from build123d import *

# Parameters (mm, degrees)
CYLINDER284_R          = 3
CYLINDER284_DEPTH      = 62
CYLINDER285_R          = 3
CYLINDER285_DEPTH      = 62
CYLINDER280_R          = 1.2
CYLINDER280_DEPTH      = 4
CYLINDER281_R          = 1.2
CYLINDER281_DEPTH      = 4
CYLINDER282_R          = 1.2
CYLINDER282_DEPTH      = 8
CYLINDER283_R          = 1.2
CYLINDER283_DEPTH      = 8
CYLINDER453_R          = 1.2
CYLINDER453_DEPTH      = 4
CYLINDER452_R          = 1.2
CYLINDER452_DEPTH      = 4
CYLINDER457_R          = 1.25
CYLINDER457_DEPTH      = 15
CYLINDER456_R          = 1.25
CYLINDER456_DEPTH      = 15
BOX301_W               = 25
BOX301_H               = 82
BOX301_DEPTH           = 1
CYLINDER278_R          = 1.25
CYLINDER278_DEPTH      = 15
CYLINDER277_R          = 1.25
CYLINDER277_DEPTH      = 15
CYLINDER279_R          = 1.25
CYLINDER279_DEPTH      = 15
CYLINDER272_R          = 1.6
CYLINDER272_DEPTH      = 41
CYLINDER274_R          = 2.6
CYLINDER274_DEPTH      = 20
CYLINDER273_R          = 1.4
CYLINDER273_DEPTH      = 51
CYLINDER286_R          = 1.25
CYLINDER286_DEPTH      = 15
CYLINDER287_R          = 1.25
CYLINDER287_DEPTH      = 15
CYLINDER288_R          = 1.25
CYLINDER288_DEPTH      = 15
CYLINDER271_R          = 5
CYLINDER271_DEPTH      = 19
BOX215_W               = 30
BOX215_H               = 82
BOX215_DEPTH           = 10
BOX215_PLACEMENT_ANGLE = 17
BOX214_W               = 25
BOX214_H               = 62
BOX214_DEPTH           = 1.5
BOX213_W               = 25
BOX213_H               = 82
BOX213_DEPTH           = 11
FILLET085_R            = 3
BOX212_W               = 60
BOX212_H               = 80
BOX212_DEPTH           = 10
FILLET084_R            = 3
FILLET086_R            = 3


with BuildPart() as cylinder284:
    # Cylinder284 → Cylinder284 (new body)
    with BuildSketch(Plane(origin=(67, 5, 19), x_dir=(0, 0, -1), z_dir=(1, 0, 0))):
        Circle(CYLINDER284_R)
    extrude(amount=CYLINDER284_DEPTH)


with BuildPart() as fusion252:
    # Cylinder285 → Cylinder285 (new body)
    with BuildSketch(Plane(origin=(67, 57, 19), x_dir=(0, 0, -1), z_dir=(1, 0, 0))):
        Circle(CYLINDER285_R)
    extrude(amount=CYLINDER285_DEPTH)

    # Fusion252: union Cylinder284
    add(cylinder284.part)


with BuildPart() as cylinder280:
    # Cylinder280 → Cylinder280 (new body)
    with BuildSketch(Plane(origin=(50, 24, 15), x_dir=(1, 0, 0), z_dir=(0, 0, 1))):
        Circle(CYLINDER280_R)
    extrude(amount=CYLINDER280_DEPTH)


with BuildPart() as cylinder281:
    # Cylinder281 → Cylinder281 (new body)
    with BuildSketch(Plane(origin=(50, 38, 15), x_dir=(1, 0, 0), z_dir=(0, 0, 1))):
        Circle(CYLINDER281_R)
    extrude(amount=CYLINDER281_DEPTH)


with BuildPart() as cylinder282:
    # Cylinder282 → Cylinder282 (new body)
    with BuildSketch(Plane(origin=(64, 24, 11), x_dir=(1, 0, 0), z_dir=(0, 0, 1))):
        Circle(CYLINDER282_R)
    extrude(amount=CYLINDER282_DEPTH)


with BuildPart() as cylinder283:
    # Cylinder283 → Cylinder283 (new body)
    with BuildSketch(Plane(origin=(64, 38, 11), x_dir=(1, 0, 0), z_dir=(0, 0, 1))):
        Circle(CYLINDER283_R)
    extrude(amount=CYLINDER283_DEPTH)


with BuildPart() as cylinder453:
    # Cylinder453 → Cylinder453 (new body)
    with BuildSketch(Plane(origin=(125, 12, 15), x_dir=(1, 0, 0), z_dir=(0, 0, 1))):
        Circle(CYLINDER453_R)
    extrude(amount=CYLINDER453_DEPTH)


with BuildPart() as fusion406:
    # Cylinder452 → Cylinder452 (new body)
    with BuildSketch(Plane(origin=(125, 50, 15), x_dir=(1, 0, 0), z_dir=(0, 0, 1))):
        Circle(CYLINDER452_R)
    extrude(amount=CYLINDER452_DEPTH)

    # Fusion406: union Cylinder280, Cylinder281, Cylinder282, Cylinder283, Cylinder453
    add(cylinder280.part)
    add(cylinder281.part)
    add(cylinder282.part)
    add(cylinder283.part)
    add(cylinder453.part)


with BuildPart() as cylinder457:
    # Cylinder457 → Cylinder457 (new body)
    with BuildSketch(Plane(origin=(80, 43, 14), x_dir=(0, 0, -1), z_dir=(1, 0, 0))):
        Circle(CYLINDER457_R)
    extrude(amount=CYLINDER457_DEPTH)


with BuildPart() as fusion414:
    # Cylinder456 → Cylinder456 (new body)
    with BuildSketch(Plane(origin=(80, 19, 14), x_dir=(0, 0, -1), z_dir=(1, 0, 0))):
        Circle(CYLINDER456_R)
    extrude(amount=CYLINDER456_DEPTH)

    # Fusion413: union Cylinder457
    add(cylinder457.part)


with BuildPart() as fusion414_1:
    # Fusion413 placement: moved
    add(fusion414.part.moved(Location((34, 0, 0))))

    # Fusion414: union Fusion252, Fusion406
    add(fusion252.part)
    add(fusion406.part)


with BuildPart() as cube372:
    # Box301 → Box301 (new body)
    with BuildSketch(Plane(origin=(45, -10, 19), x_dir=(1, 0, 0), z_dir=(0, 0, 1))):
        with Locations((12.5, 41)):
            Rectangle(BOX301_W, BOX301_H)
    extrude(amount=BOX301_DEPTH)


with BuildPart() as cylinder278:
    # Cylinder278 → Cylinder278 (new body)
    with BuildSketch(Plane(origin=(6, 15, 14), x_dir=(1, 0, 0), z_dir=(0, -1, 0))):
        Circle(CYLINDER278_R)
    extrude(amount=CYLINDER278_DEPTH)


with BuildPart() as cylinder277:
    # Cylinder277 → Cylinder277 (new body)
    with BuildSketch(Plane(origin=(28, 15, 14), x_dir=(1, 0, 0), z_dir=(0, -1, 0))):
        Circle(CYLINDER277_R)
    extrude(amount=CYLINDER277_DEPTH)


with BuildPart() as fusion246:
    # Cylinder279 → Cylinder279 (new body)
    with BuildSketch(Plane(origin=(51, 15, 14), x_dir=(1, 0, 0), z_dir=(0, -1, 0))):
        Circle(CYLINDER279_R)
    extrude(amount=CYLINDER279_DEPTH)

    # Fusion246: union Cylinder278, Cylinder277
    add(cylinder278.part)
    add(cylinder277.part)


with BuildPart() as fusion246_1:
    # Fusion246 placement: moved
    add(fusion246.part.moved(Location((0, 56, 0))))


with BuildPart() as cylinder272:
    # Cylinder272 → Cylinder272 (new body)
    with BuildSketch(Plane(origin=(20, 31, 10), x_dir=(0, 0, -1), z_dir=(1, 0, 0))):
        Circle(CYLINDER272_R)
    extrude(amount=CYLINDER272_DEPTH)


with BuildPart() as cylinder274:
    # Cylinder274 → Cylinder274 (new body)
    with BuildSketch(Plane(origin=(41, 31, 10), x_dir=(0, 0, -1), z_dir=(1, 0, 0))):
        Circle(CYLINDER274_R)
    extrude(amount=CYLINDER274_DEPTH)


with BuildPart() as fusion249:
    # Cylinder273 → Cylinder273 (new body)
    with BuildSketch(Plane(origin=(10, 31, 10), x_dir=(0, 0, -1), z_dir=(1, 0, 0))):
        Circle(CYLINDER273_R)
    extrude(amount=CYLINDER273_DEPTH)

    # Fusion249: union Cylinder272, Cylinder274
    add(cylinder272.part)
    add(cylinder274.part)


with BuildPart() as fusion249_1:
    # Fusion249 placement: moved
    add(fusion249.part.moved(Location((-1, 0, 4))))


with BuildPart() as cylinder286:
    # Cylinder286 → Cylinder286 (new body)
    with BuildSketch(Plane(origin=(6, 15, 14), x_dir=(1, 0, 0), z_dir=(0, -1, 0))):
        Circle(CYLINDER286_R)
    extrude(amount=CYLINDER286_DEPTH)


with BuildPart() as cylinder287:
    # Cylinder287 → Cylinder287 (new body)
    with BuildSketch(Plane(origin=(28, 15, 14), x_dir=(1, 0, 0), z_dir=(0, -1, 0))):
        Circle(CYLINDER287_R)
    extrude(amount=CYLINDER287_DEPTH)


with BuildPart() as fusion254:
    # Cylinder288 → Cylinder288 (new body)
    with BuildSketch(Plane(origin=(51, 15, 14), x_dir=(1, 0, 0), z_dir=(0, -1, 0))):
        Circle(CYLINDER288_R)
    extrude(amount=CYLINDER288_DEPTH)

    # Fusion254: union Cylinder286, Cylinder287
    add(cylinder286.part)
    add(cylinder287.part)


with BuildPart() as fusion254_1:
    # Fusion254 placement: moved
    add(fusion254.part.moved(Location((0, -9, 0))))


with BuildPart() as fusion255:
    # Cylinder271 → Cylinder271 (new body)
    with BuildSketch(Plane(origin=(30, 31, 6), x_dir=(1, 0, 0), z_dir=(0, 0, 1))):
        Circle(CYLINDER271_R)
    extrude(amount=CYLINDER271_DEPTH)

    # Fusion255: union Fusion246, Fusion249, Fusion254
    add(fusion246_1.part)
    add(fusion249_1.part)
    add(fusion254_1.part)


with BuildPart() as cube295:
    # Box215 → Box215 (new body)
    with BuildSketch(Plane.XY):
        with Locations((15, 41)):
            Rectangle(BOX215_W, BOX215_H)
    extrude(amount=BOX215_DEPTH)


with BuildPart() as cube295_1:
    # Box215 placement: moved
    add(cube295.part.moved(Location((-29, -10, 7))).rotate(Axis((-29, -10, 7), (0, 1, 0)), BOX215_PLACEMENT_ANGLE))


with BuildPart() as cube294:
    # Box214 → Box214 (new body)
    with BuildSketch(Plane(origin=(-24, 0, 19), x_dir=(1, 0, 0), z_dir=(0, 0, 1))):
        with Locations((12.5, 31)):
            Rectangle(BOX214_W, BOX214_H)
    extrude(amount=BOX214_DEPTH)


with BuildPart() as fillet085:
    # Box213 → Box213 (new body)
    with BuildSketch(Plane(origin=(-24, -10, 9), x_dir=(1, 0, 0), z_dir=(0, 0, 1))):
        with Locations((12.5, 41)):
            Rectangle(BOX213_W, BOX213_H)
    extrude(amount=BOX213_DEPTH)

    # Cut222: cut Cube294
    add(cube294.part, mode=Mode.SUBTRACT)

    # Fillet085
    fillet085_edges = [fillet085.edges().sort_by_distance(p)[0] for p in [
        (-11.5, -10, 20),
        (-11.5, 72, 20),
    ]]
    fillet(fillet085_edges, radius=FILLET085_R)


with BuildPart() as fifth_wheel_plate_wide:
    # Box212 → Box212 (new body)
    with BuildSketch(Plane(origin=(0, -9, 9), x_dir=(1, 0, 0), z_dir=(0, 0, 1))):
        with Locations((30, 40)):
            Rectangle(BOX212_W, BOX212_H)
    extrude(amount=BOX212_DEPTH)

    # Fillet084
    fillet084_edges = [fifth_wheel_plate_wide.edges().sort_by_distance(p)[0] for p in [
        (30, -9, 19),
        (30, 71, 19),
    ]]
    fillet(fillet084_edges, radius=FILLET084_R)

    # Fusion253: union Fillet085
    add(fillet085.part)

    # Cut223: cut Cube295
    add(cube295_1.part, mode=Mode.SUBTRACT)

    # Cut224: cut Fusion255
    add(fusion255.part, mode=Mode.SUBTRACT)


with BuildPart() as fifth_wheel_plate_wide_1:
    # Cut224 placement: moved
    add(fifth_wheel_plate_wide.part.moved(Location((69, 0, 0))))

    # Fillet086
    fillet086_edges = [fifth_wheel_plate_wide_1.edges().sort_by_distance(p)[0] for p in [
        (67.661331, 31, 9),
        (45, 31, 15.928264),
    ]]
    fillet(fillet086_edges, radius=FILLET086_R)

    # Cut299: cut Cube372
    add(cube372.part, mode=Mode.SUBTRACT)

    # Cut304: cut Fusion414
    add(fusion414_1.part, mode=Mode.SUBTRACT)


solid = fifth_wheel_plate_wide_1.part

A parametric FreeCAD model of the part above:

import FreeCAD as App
import Part
import Sketcher
from FreeCAD import Vector


def edges_at(feature, points):
    """Names of the edges that pass closest to the given points."""
    edges = feature.Shape.Edges
    near = lambda p: min(range(len(edges)), key=lambda i: edges[i].distToShape(Part.Vertex(*p))[0])
    return sorted({f"Edge{near(p) + 1}" for p in points})


def add_polygon(sketch, points):
    """Adds a closed chain of lines whose ends are joined by coincident constraints."""
    first, n = sketch.GeometryCount, len(points)
    for a, b in zip(points, points[1:] + points[:1]):
        sketch.addGeometry(Part.LineSegment(App.Vector(*a, 0), App.Vector(*b, 0)), False)
    for i in range(n):
        sketch.addConstraint(Sketcher.Constraint("Coincident", first + i, 2, first + (i + 1) % n, 1))

doc = App.newDocument("Part")
params = doc.addObject("Spreadsheet::Sheet", "Params")
for row, (alias, value) in enumerate([
    ("sketch1_diameter", "6 mm"),
    ("pad1_length", "62 mm"),
    ("sketch2_diameter", "6 mm"),
    ("pad2_length", "62 mm"),
    ("sketch3_diameter", "2.4 mm"),
    ("pad3_length", "4 mm"),
    ("sketch4_diameter", "2.4 mm"),
    ("pad4_length", "4 mm"),
    ("sketch5_diameter", "2.4 mm"),
    ("pad5_length", "8 mm"),
    ("sketch6_diameter", "2.4 mm"),
    ("pad6_length", "8 mm"),
    ("sketch7_diameter", "2.4 mm"),
    ("pad7_length", "4 mm"),
    ("sketch8_diameter", "2.4 mm"),
    ("pad8_length", "4 mm"),
    ("sketch9_diameter", "2.5 mm"),
    ("pad9_length", "15 mm"),
    ("sketch10_diameter", "2.5 mm"),
    ("pad10_length", "15 mm"),
    ("sketch11_width", "25 mm"),
    ("sketch11_height", "82 mm"),
    ("pad11_length", "1 mm"),
    ("sketch12_diameter", "2.5 mm"),
    ("pad12_length", "15 mm"),
    ("sketch13_diameter", "2.5 mm"),
    ("pad13_length", "15 mm"),
    ("sketch14_diameter", "2.5 mm"),
    ("pad14_length", "15 mm"),
    ("sketch15_diameter", "3.2 mm"),
    ("pad15_length", "41 mm"),
    ("sketch16_diameter", "5.2 mm"),
    ("pad16_length", "20 mm"),
    ("sketch17_diameter", "2.8 mm"),
    ("pad17_length", "51 mm"),
    ("sketch18_diameter", "2.5 mm"),
    ("pad18_length", "15 mm"),
    ("sketch19_diameter", "2.5 mm"),
    ("pad19_length", "15 mm"),
    ("sketch20_diameter", "2.5 mm"),
    ("pad20_length", "15 mm"),
    ("sketch21_diameter", "10 mm"),
    ("pad21_length", "19 mm"),
    ("sketch22_width", "30 mm"),
    ("sketch22_height", "82 mm"),
    ("pad22_length", "10 mm"),
    ("sketch23_width", "25 mm"),
    ("sketch23_height", "62 mm"),
    ("pad23_length", "1.5 mm"),
    ("sketch24_width", "25 mm"),
    ("sketch24_height", "82 mm"),
    ("pad24_length", "11 mm"),
    ("fillet_radius", "3 mm"),
    ("sketch25_width", "60 mm"),
    ("sketch25_height", "80 mm"),
    ("pad25_length", "10 mm"),
    ("fillet2_radius", "3 mm"),
    ("fillet3_radius", "3 mm"),
], start=1):
    params.set(f"A{row}", alias)
    params.set(f"B{row}", "=" + value)
    params.setAlias(f"B{row}", alias)

body = doc.addObject("PartDesign::Body", "Body")

sketch1 = body.newObject("Sketcher::SketchObject", "Sketch")
sketch1.AttachmentSupport = (doc.getObject("YZ_Plane"), [""])
sketch1.MapMode = "FlatFace"
sketch1.AttachmentOffset = App.Placement(Vector(0, 0, 67), App.Rotation())
sketch1.addGeometry(Part.Circle(Vector(5, 19, 0), Vector(0, 0, 1), 3), False)
sketch1.addConstraint(Sketcher.Constraint("Diameter", 0, 6.0))
sketch1.addConstraint(Sketcher.Constraint("DistanceX", -1, 1, 0, 3, 5.0))
sketch1.addConstraint(Sketcher.Constraint("DistanceY", -1, 1, 0, 3, 19.0))
sketch1.setExpression("Constraints[0]", "Params.sketch1_diameter")
pad1 = body.newObject("PartDesign::Pad", "Pad")
pad1.Profile = sketch1
pad1.setExpression("Length", "Params.pad1_length")
body2 = doc.addObject("PartDesign::Body", "Body001")
body2.AllowCompound = True

sketch2 = body2.newObject("Sketcher::SketchObject", "Sketch001")
sketch2.AttachmentSupport = (doc.getObject("YZ_Plane001"), [""])
sketch2.MapMode = "FlatFace"
sketch2.AttachmentOffset = App.Placement(Vector(0, 0, 67), App.Rotation())
sketch2.addGeometry(Part.Circle(Vector(57, 19, 0), Vector(0, 0, 1), 3), False)
sketch2.addConstraint(Sketcher.Constraint("Diameter", 0, 6.0))
sketch2.addConstraint(Sketcher.Constraint("DistanceX", -1, 1, 0, 3, 57.0))
sketch2.addConstraint(Sketcher.Constraint("DistanceY", -1, 1, 0, 3, 19.0))
sketch2.setExpression("Constraints[0]", "Params.sketch2_diameter")
pad2 = body2.newObject("PartDesign::Pad", "Pad001")
pad2.Profile = sketch2
pad2.setExpression("Length", "Params.pad2_length")
doc.recompute()

boolean = body2.newObject("PartDesign::Boolean", "Boolean")
boolean.Type = "Fuse"
boolean.addObjects([body])
body3 = doc.addObject("PartDesign::Body", "Body002")

sketch3 = body3.newObject("Sketcher::SketchObject", "Sketch002")
sketch3.AttachmentSupport = (doc.getObject("XY_Plane002"), [""])
sketch3.MapMode = "FlatFace"
sketch3.AttachmentOffset = App.Placement(Vector(0, 0, 15), App.Rotation())
sketch3.addGeometry(Part.Circle(Vector(50, 24, 0), Vector(0, 0, 1), 1.2), False)
sketch3.addConstraint(Sketcher.Constraint("Diameter", 0, 2.4))
sketch3.addConstraint(Sketcher.Constraint("DistanceX", -1, 1, 0, 3, 50.0))
sketch3.addConstraint(Sketcher.Constraint("DistanceY", -1, 1, 0, 3, 24.0))
sketch3.setExpression("Constraints[0]", "Params.sketch3_diameter")
pad3 = body3.newObject("PartDesign::Pad", "Pad002")
pad3.Profile = sketch3
pad3.setExpression("Length", "Params.pad3_length")
body4 = doc.addObject("PartDesign::Body", "Body003")

sketch4 = body4.newObject("Sketcher::SketchObject", "Sketch003")
sketch4.AttachmentSupport = (doc.getObject("XY_Plane003"), [""])
sketch4.MapMode = "FlatFace"
sketch4.AttachmentOffset = App.Placement(Vector(0, 0, 15), App.Rotation())
sketch4.addGeometry(Part.Circle(Vector(50, 38, 0), Vector(0, 0, 1), 1.2), False)
sketch4.addConstraint(Sketcher.Constraint("Diameter", 0, 2.4))
sketch4.addConstraint(Sketcher.Constraint("DistanceX", -1, 1, 0, 3, 50.0))
sketch4.addConstraint(Sketcher.Constraint("DistanceY", -1, 1, 0, 3, 38.0))
sketch4.setExpression("Constraints[0]", "Params.sketch4_diameter")
pad4 = body4.newObject("PartDesign::Pad", "Pad003")
pad4.Profile = sketch4
pad4.setExpression("Length", "Params.pad4_length")
body5 = doc.addObject("PartDesign::Body", "Body004")

sketch5 = body5.newObject("Sketcher::SketchObject", "Sketch004")
sketch5.AttachmentSupport = (doc.getObject("XY_Plane004"), [""])
sketch5.MapMode = "FlatFace"
sketch5.AttachmentOffset = App.Placement(Vector(0, 0, 11), App.Rotation())
sketch5.addGeometry(Part.Circle(Vector(64, 24, 0), Vector(0, 0, 1), 1.2), False)
sketch5.addConstraint(Sketcher.Constraint("Diameter", 0, 2.4))
sketch5.addConstraint(Sketcher.Constraint("DistanceX", -1, 1, 0, 3, 64.0))
sketch5.addConstraint(Sketcher.Constraint("DistanceY", -1, 1, 0, 3, 24.0))
sketch5.setExpression("Constraints[0]", "Params.sketch5_diameter")
pad5 = body5.newObject("PartDesign::Pad", "Pad004")
pad5.Profile = sketch5
pad5.setExpression("Length", "Params.pad5_length")
body6 = doc.addObject("PartDesign::Body", "Body005")

sketch6 = body6.newObject("Sketcher::SketchObject", "Sketch005")
sketch6.AttachmentSupport = (doc.getObject("XY_Plane005"), [""])
sketch6.MapMode = "FlatFace"
sketch6.AttachmentOffset = App.Placement(Vector(0, 0, 11), App.Rotation())
sketch6.addGeometry(Part.Circle(Vector(64, 38, 0), Vector(0, 0, 1), 1.2), False)
sketch6.addConstraint(Sketcher.Constraint("Diameter", 0, 2.4))
sketch6.addConstraint(Sketcher.Constraint("DistanceX", -1, 1, 0, 3, 64.0))
sketch6.addConstraint(Sketcher.Constraint("DistanceY", -1, 1, 0, 3, 38.0))
sketch6.setExpression("Constraints[0]", "Params.sketch6_diameter")
pad6 = body6.newObject("PartDesign::Pad", "Pad005")
pad6.Profile = sketch6
pad6.setExpression("Length", "Params.pad6_length")
body7 = doc.addObject("PartDesign::Body", "Body006")

sketch7 = body7.newObject("Sketcher::SketchObject", "Sketch006")
sketch7.AttachmentSupport = (doc.getObject("XY_Plane006"), [""])
sketch7.MapMode = "FlatFace"
sketch7.AttachmentOffset = App.Placement(Vector(0, 0, 15), App.Rotation())
sketch7.addGeometry(Part.Circle(Vector(125, 12, 0), Vector(0, 0, 1), 1.2), False)
sketch7.addConstraint(Sketcher.Constraint("Diameter", 0, 2.4))
sketch7.addConstraint(Sketcher.Constraint("DistanceX", -1, 1, 0, 3, 125.0))
sketch7.addConstraint(Sketcher.Constraint("DistanceY", -1, 1, 0, 3, 12.0))
sketch7.setExpression("Constraints[0]", "Params.sketch7_diameter")
pad7 = body7.newObject("PartDesign::Pad", "Pad006")
pad7.Profile = sketch7
pad7.setExpression("Length", "Params.pad7_length")
body8 = doc.addObject("PartDesign::Body", "Body007")
body8.AllowCompound = True

sketch8 = body8.newObject("Sketcher::SketchObject", "Sketch007")
sketch8.AttachmentSupport = (doc.getObject("XY_Plane007"), [""])
sketch8.MapMode = "FlatFace"
sketch8.AttachmentOffset = App.Placement(Vector(0, 0, 15), App.Rotation())
sketch8.addGeometry(Part.Circle(Vector(125, 50, 0), Vector(0, 0, 1), 1.2), False)
sketch8.addConstraint(Sketcher.Constraint("Diameter", 0, 2.4))
sketch8.addConstraint(Sketcher.Constraint("DistanceX", -1, 1, 0, 3, 125.0))
sketch8.addConstraint(Sketcher.Constraint("DistanceY", -1, 1, 0, 3, 50.0))
sketch8.setExpression("Constraints[0]", "Params.sketch8_diameter")
pad8 = body8.newObject("PartDesign::Pad", "Pad007")
pad8.Profile = sketch8
pad8.setExpression("Length", "Params.pad8_length")
doc.recompute()

boolean2 = body8.newObject("PartDesign::Boolean", "Boolean001")
boolean2.Type = "Fuse"
boolean2.addObjects([body3])
doc.recompute()

boolean3 = body8.newObject("PartDesign::Boolean", "Boolean002")
boolean3.Type = "Fuse"
boolean3.addObjects([body4])
doc.recompute()

boolean4 = body8.newObject("PartDesign::Boolean", "Boolean003")
boolean4.Type = "Fuse"
boolean4.addObjects([body5])
doc.recompute()

boolean5 = body8.newObject("PartDesign::Boolean", "Boolean004")
boolean5.Type = "Fuse"
boolean5.addObjects([body6])
doc.recompute()

boolean6 = body8.newObject("PartDesign::Boolean", "Boolean005")
boolean6.Type = "Fuse"
boolean6.addObjects([body7])
body9 = doc.addObject("PartDesign::Body", "Body008")

sketch9 = body9.newObject("Sketcher::SketchObject", "Sketch008")
sketch9.AttachmentSupport = (doc.getObject("YZ_Plane008"), [""])
sketch9.MapMode = "FlatFace"
sketch9.AttachmentOffset = App.Placement(Vector(0, 0, 80), App.Rotation())
sketch9.addGeometry(Part.Circle(Vector(43, 14, 0), Vector(0, 0, 1), 1.2), False)
sketch9.addConstraint(Sketcher.Constraint("Diameter", 0, 2.5))
sketch9.addConstraint(Sketcher.Constraint("DistanceX", -1, 1, 0, 3, 43.0))
sketch9.addConstraint(Sketcher.Constraint("DistanceY", -1, 1, 0, 3, 14.0))
sketch9.setExpression("Constraints[0]", "Params.sketch9_diameter")
pad9 = body9.newObject("PartDesign::Pad", "Pad008")
pad9.Profile = sketch9
pad9.setExpression("Length", "Params.pad9_length")
body10 = doc.addObject("PartDesign::Body", "Body009")
body10.AllowCompound = True

sketch10 = body10.newObject("Sketcher::SketchObject", "Sketch009")
sketch10.AttachmentSupport = (doc.getObject("YZ_Plane009"), [""])
sketch10.MapMode = "FlatFace"
sketch10.AttachmentOffset = App.Placement(Vector(0, 0, 80), App.Rotation())
sketch10.addGeometry(Part.Circle(Vector(19, 14, 0), Vector(0, 0, 1), 1.2), False)
sketch10.addConstraint(Sketcher.Constraint("Diameter", 0, 2.5))
sketch10.addConstraint(Sketcher.Constraint("DistanceX", -1, 1, 0, 3, 19.0))
sketch10.addConstraint(Sketcher.Constraint("DistanceY", -1, 1, 0, 3, 14.0))
sketch10.setExpression("Constraints[0]", "Params.sketch10_diameter")
pad10 = body10.newObject("PartDesign::Pad", "Pad009")
pad10.Profile = sketch10
pad10.setExpression("Length", "Params.pad10_length")
doc.recompute()

boolean7 = body10.newObject("PartDesign::Boolean", "Boolean006")
boolean7.Type = "Fuse"
boolean7.addObjects([body9])
body11 = doc.addObject("PartDesign::Body", "Body010")
body11.AllowCompound = True
doc.recompute()

body10.Placement = App.Placement(Vector(34, 0, 0), App.Rotation(Vector(0, 0, 1), 0))
boolean8 = body11.newObject("PartDesign::Boolean", "Boolean007")
boolean8.Type = "Fuse"
boolean8.addObjects([body10])
doc.recompute()

boolean9 = body11.newObject("PartDesign::Boolean", "Boolean008")
boolean9.Type = "Fuse"
boolean9.addObjects([body2])
doc.recompute()

boolean10 = body11.newObject("PartDesign::Boolean", "Boolean009")
boolean10.Type = "Fuse"
boolean10.addObjects([body8])
body12 = doc.addObject("PartDesign::Body", "Body011")

sketch11 = body12.newObject("Sketcher::SketchObject", "Sketch010")
sketch11.AttachmentSupport = (doc.getObject("XY_Plane011"), [""])
sketch11.MapMode = "FlatFace"
sketch11.AttachmentOffset = App.Placement(Vector(0, 0, 19), App.Rotation())
add_polygon(sketch11, [(45, 72), (45, -10), (70, -10), (70, 72)])
sketch11.addConstraint(Sketcher.Constraint("Vertical", 0))
sketch11.addConstraint(Sketcher.Constraint("Horizontal", 1))
sketch11.addConstraint(Sketcher.Constraint("Vertical", 2))
sketch11.addConstraint(Sketcher.Constraint("Horizontal", 3))
sketch11.addConstraint(Sketcher.Constraint("DistanceX", 1, 1, 1, 2, 25.0))
sketch11.addConstraint(Sketcher.Constraint("DistanceY", 0, 2, 0, 1, 82.0))
sketch11.addConstraint(Sketcher.Constraint("DistanceX", -1, 1, 0, 2, 45.0))
sketch11.addConstraint(Sketcher.Constraint("DistanceY", 0, 2, -1, 1, 10.0))
sketch11.setExpression("Constraints[8]", "Params.sketch11_width")
sketch11.setExpression("Constraints[9]", "Params.sketch11_height")
pad11 = body12.newObject("PartDesign::Pad", "Pad010")
pad11.Profile = sketch11
pad11.setExpression("Length", "Params.pad11_length")
body13 = doc.addObject("PartDesign::Body", "Body012")

sketch12 = body13.newObject("Sketcher::SketchObject", "Sketch011")
sketch12.AttachmentSupport = (doc.getObject("XZ_Plane012"), [""])
sketch12.MapMode = "FlatFace"
sketch12.AttachmentOffset = App.Placement(Vector(0, 0, -15), App.Rotation())
sketch12.addGeometry(Part.Circle(Vector(6, 14, 0), Vector(0, 0, 1), 1.2), False)
sketch12.addConstraint(Sketcher.Constraint("Diameter", 0, 2.5))
sketch12.addConstraint(Sketcher.Constraint("DistanceX", -1, 1, 0, 3, 6.0))
sketch12.addConstraint(Sketcher.Constraint("DistanceY", -1, 1, 0, 3, 14.0))
sketch12.setExpression("Constraints[0]", "Params.sketch12_diameter")
pad12 = body13.newObject("PartDesign::Pad", "Pad011")
pad12.Profile = sketch12
pad12.setExpression("Length", "Params.pad12_length")
body14 = doc.addObject("PartDesign::Body", "Body013")

sketch13 = body14.newObject("Sketcher::SketchObject", "Sketch012")
sketch13.AttachmentSupport = (doc.getObject("XZ_Plane013"), [""])
sketch13.MapMode = "FlatFace"
sketch13.AttachmentOffset = App.Placement(Vector(0, 0, -15), App.Rotation())
sketch13.addGeometry(Part.Circle(Vector(28, 14, 0), Vector(0, 0, 1), 1.2), False)
sketch13.addConstraint(Sketcher.Constraint("Diameter", 0, 2.5))
sketch13.addConstraint(Sketcher.Constraint("DistanceX", -1, 1, 0, 3, 28.0))
sketch13.addConstraint(Sketcher.Constraint("DistanceY", -1, 1, 0, 3, 14.0))
sketch13.setExpression("Constraints[0]", "Params.sketch13_diameter")
pad13 = body14.newObject("PartDesign::Pad", "Pad012")
pad13.Profile = sketch13
pad13.setExpression("Length", "Params.pad13_length")
body15 = doc.addObject("PartDesign::Body", "Body014")
body15.AllowCompound = True

sketch14 = body15.newObject("Sketcher::SketchObject", "Sketch013")
sketch14.AttachmentSupport = (doc.getObject("XZ_Plane014"), [""])
sketch14.MapMode = "FlatFace"
sketch14.AttachmentOffset = App.Placement(Vector(0, 0, -15), App.Rotation())
sketch14.addGeometry(Part.Circle(Vector(51, 14, 0), Vector(0, 0, 1), 1.2), False)
sketch14.addConstraint(Sketcher.Constraint("Diameter", 0, 2.5))
sketch14.addConstraint(Sketcher.Constraint("DistanceX", -1, 1, 0, 3, 51.0))
sketch14.addConstraint(Sketcher.Constraint("DistanceY", -1, 1, 0, 3, 14.0))
sketch14.setExpression("Constraints[0]", "Params.sketch14_diameter")
pad14 = body15.newObject("PartDesign::Pad", "Pad013")
pad14.Profile = sketch14
pad14.setExpression("Length", "Params.pad14_length")
doc.recompute()

boolean11 = body15.newObject("PartDesign::Boolean", "Boolean010")
boolean11.Type = "Fuse"
boolean11.addObjects([body13])
doc.recompute()

boolean12 = body15.newObject("PartDesign::Boolean", "Boolean011")
boolean12.Type = "Fuse"
boolean12.addObjects([body14])
body16 = doc.addObject("PartDesign::Body", "Body015")
body16.AllowCompound = True
doc.recompute()

body15.Placement = App.Placement(Vector(0, 56, 0), App.Rotation(Vector(0, 0, 1), 0))
boolean13 = body16.newObject("PartDesign::Boolean", "Boolean012")
boolean13.Type = "Fuse"
boolean13.addObjects([body15])
body17 = doc.addObject("PartDesign::Body", "Body016")

sketch15 = body17.newObject("Sketcher::SketchObject", "Sketch014")
sketch15.AttachmentSupport = (doc.getObject("YZ_Plane016"), [""])
sketch15.MapMode = "FlatFace"
sketch15.AttachmentOffset = App.Placement(Vector(0, 0, 20), App.Rotation())
sketch15.addGeometry(Part.Circle(Vector(31, 10, 0), Vector(0, 0, 1), 1.6), False)
sketch15.addConstraint(Sketcher.Constraint("Diameter", 0, 3.2))
sketch15.addConstraint(Sketcher.Constraint("DistanceX", -1, 1, 0, 3, 31.0))
sketch15.addConstraint(Sketcher.Constraint("DistanceY", -1, 1, 0, 3, 10.0))
sketch15.setExpression("Constraints[0]", "Params.sketch15_diameter")
pad15 = body17.newObject("PartDesign::Pad", "Pad014")
pad15.Profile = sketch15
pad15.setExpression("Length", "Params.pad15_length")
body18 = doc.addObject("PartDesign::Body", "Body017")

sketch16 = body18.newObject("Sketcher::SketchObject", "Sketch015")
sketch16.AttachmentSupport = (doc.getObject("YZ_Plane017"), [""])
sketch16.MapMode = "FlatFace"
sketch16.AttachmentOffset = App.Placement(Vector(0, 0, 41), App.Rotation())
sketch16.addGeometry(Part.Circle(Vector(31, 10, 0), Vector(0, 0, 1), 2.6), False)
sketch16.addConstraint(Sketcher.Constraint("Diameter", 0, 5.2))
sketch16.addConstraint(Sketcher.Constraint("DistanceX", -1, 1, 0, 3, 31.0))
sketch16.addConstraint(Sketcher.Constraint("DistanceY", -1, 1, 0, 3, 10.0))
sketch16.setExpression("Constraints[0]", "Params.sketch16_diameter")
pad16 = body18.newObject("PartDesign::Pad", "Pad015")
pad16.Profile = sketch16
pad16.setExpression("Length", "Params.pad16_length")
body19 = doc.addObject("PartDesign::Body", "Body018")

sketch17 = body19.newObject("Sketcher::SketchObject", "Sketch016")
sketch17.AttachmentSupport = (doc.getObject("YZ_Plane018"), [""])
sketch17.MapMode = "FlatFace"
sketch17.AttachmentOffset = App.Placement(Vector(0, 0, 10), App.Rotation())
sketch17.addGeometry(Part.Circle(Vector(31, 10, 0), Vector(0, 0, 1), 1.4), False)
sketch17.addConstraint(Sketcher.Constraint("Diameter", 0, 2.8))
sketch17.addConstraint(Sketcher.Constraint("DistanceX", -1, 1, 0, 3, 31.0))
sketch17.addConstraint(Sketcher.Constraint("DistanceY", -1, 1, 0, 3, 10.0))
sketch17.setExpression("Constraints[0]", "Params.sketch17_diameter")
pad17 = body19.newObject("PartDesign::Pad", "Pad016")
pad17.Profile = sketch17
pad17.setExpression("Length", "Params.pad17_length")
doc.recompute()

boolean14 = body19.newObject("PartDesign::Boolean", "Boolean013")
boolean14.Type = "Fuse"
boolean14.addObjects([body17])
doc.recompute()

boolean15 = body19.newObject("PartDesign::Boolean", "Boolean014")
boolean15.Type = "Fuse"
boolean15.addObjects([body18])
body20 = doc.addObject("PartDesign::Body", "Body019")
doc.recompute()

body19.Placement = App.Placement(Vector(-1, 0, 4), App.Rotation(Vector(0, 0, 1), 0))
boolean16 = body20.newObject("PartDesign::Boolean", "Boolean015")
boolean16.Type = "Fuse"
boolean16.addObjects([body19])
body21 = doc.addObject("PartDesign::Body", "Body020")

sketch18 = body21.newObject("Sketcher::SketchObject", "Sketch017")
sketch18.AttachmentSupport = (doc.getObject("XZ_Plane020"), [""])
sketch18.MapMode = "FlatFace"
sketch18.AttachmentOffset = App.Placement(Vector(0, 0, -15), App.Rotation())
sketch18.addGeometry(Part.Circle(Vector(6, 14, 0), Vector(0, 0, 1), 1.2), False)
sketch18.addConstraint(Sketcher.Constraint("Diameter", 0, 2.5))
sketch18.addConstraint(Sketcher.Constraint("DistanceX", -1, 1, 0, 3, 6.0))
sketch18.addConstraint(Sketcher.Constraint("DistanceY", -1, 1, 0, 3, 14.0))
sketch18.setExpression("Constraints[0]", "Params.sketch18_diameter")
pad18 = body21.newObject("PartDesign::Pad", "Pad017")
pad18.Profile = sketch18
pad18.setExpression("Length", "Params.pad18_length")
body22 = doc.addObject("PartDesign::Body", "Body021")

sketch19 = body22.newObject("Sketcher::SketchObject", "Sketch018")
sketch19.AttachmentSupport = (doc.getObject("XZ_Plane021"), [""])
sketch19.MapMode = "FlatFace"
sketch19.AttachmentOffset = App.Placement(Vector(0, 0, -15), App.Rotation())
sketch19.addGeometry(Part.Circle(Vector(28, 14, 0), Vector(0, 0, 1), 1.2), False)
sketch19.addConstraint(Sketcher.Constraint("Diameter", 0, 2.5))
sketch19.addConstraint(Sketcher.Constraint("DistanceX", -1, 1, 0, 3, 28.0))
sketch19.addConstraint(Sketcher.Constraint("DistanceY", -1, 1, 0, 3, 14.0))
sketch19.setExpression("Constraints[0]", "Params.sketch19_diameter")
pad19 = body22.newObject("PartDesign::Pad", "Pad018")
pad19.Profile = sketch19
pad19.setExpression("Length", "Params.pad19_length")
body23 = doc.addObject("PartDesign::Body", "Body022")
body23.AllowCompound = True

sketch20 = body23.newObject("Sketcher::SketchObject", "Sketch019")
sketch20.AttachmentSupport = (doc.getObject("XZ_Plane022"), [""])
sketch20.MapMode = "FlatFace"
sketch20.AttachmentOffset = App.Placement(Vector(0, 0, -15), App.Rotation())
sketch20.addGeometry(Part.Circle(Vector(51, 14, 0), Vector(0, 0, 1), 1.2), False)
sketch20.addConstraint(Sketcher.Constraint("Diameter", 0, 2.5))
sketch20.addConstraint(Sketcher.Constraint("DistanceX", -1, 1, 0, 3, 51.0))
sketch20.addConstraint(Sketcher.Constraint("DistanceY", -1, 1, 0, 3, 14.0))
sketch20.setExpression("Constraints[0]", "Params.sketch20_diameter")
pad20 = body23.newObject("PartDesign::Pad", "Pad019")
pad20.Profile = sketch20
pad20.setExpression("Length", "Params.pad20_length")
doc.recompute()

boolean17 = body23.newObject("PartDesign::Boolean", "Boolean016")
boolean17.Type = "Fuse"
boolean17.addObjects([body21])
doc.recompute()

boolean18 = body23.newObject("PartDesign::Boolean", "Boolean017")
boolean18.Type = "Fuse"
boolean18.addObjects([body22])
body24 = doc.addObject("PartDesign::Body", "Body023")
body24.AllowCompound = True
doc.recompute()

body23.Placement = App.Placement(Vector(0, -9, 0), App.Rotation(Vector(0, 0, 1), 0))
boolean19 = body24.newObject("PartDesign::Boolean", "Boolean018")
boolean19.Type = "Fuse"
boolean19.addObjects([body23])
body25 = doc.addObject("PartDesign::Body", "Body024")
body25.AllowCompound = True

sketch21 = body25.newObject("Sketcher::SketchObject", "Sketch020")
sketch21.AttachmentSupport = (doc.getObject("XY_Plane024"), [""])
sketch21.MapMode = "FlatFace"
sketch21.AttachmentOffset = App.Placement(Vector(0, 0, 6), App.Rotation())
sketch21.addGeometry(Part.Circle(Vector(30, 31, 0), Vector(0, 0, 1), 5), False)
sketch21.addConstraint(Sketcher.Constraint("Diameter", 0, 10.0))
sketch21.addConstraint(Sketcher.Constraint("DistanceX", -1, 1, 0, 3, 30.0))
sketch21.addConstraint(Sketcher.Constraint("DistanceY", -1, 1, 0, 3, 31.0))
sketch21.setExpression("Constraints[0]", "Params.sketch21_diameter")
pad21 = body25.newObject("PartDesign::Pad", "Pad020")
pad21.Profile = sketch21
pad21.setExpression("Length", "Params.pad21_length")
doc.recompute()

boolean20 = body25.newObject("PartDesign::Boolean", "Boolean019")
boolean20.Type = "Fuse"
boolean20.addObjects([body16])
doc.recompute()

boolean21 = body25.newObject("PartDesign::Boolean", "Boolean020")
boolean21.Type = "Fuse"
boolean21.addObjects([body20])
doc.recompute()

boolean22 = body25.newObject("PartDesign::Boolean", "Boolean021")
boolean22.Type = "Fuse"
boolean22.addObjects([body24])
body26 = doc.addObject("PartDesign::Body", "Body025")

sketch22 = body26.newObject("Sketcher::SketchObject", "Sketch021")
sketch22.AttachmentSupport = (doc.getObject("XY_Plane025"), [""])
sketch22.MapMode = "FlatFace"
add_polygon(sketch22, [(0, 82), (0, 0), (30, 0), (30, 82)])
sketch22.addConstraint(Sketcher.Constraint("Vertical", 0))
sketch22.addConstraint(Sketcher.Constraint("Horizontal", 1))
sketch22.addConstraint(Sketcher.Constraint("Vertical", 2))
sketch22.addConstraint(Sketcher.Constraint("Horizontal", 3))
sketch22.addConstraint(Sketcher.Constraint("Coincident", 0, 2, -1, 1))
sketch22.addConstraint(Sketcher.Constraint("DistanceX", 1, 1, 1, 2, 30.0))
sketch22.addConstraint(Sketcher.Constraint("DistanceY", 0, 2, 0, 1, 82.0))
sketch22.setExpression("Constraints[9]", "Params.sketch22_width")
sketch22.setExpression("Constraints[10]", "Params.sketch22_height")
pad22 = body26.newObject("PartDesign::Pad", "Pad021")
pad22.Profile = sketch22
pad22.setExpression("Length", "Params.pad22_length")
body27 = doc.addObject("PartDesign::Body", "Body026")
doc.recompute()

body26.Placement = App.Placement(Vector(-29, -10, 7), App.Rotation(Vector(0, 1, 0), 17))
boolean23 = body27.newObject("PartDesign::Boolean", "Boolean022")
boolean23.Type = "Fuse"
boolean23.addObjects([body26])
body28 = doc.addObject("PartDesign::Body", "Body027")

sketch23 = body28.newObject("Sketcher::SketchObject", "Sketch022")
sketch23.AttachmentSupport = (doc.getObject("XY_Plane027"), [""])
sketch23.MapMode = "FlatFace"
sketch23.AttachmentOffset = App.Placement(Vector(0, 0, 19), App.Rotation())
add_polygon(sketch23, [(-24, 62), (-24, 0), (1, 0), (1, 62)])
sketch23.addConstraint(Sketcher.Constraint("Vertical", 0))
sketch23.addConstraint(Sketcher.Constraint("Horizontal", 1))
sketch23.addConstraint(Sketcher.Constraint("Vertical", 2))
sketch23.addConstraint(Sketcher.Constraint("Horizontal", 3))
sketch23.addConstraint(Sketcher.Constraint("PointOnObject", 0, 2, -1))
sketch23.addConstraint(Sketcher.Constraint("DistanceX", 1, 1, 1, 2, 25.0))
sketch23.addConstraint(Sketcher.Constraint("DistanceY", 0, 2, 0, 1, 62.0))
sketch23.addConstraint(Sketcher.Constraint("DistanceX", 0, 2, -1, 1, 24.0))
sketch23.setExpression("Constraints[9]", "Params.sketch23_width")
sketch23.setExpression("Constraints[10]", "Params.sketch23_height")
pad23 = body28.newObject("PartDesign::Pad", "Pad022")
pad23.Profile = sketch23
pad23.setExpression("Length", "Params.pad23_length")
body29 = doc.addObject("PartDesign::Body", "Body028")

sketch24 = body29.newObject("Sketcher::SketchObject", "Sketch023")
sketch24.AttachmentSupport = (doc.getObject("XY_Plane028"), [""])
sketch24.MapMode = "FlatFace"
sketch24.AttachmentOffset = App.Placement(Vector(0, 0, 9), App.Rotation())
add_polygon(sketch24, [(-24, 72), (-24, -10), (1, -10), (1, 72)])
sketch24.addConstraint(Sketcher.Constraint("Vertical", 0))
sketch24.addConstraint(Sketcher.Constraint("Horizontal", 1))
sketch24.addConstraint(Sketcher.Constraint("Vertical", 2))
sketch24.addConstraint(Sketcher.Constraint("Horizontal", 3))
sketch24.addConstraint(Sketcher.Constraint("DistanceX", 1, 1, 1, 2, 25.0))
sketch24.addConstraint(Sketcher.Constraint("DistanceY", 0, 2, 0, 1, 82.0))
sketch24.addConstraint(Sketcher.Constraint("DistanceX", 0, 2, -1, 1, 24.0))
sketch24.addConstraint(Sketcher.Constraint("DistanceY", 0, 2, -1, 1, 10.0))
sketch24.setExpression("Constraints[8]", "Params.sketch24_width")
sketch24.setExpression("Constraints[9]", "Params.sketch24_height")
pad24 = body29.newObject("PartDesign::Pad", "Pad023")
pad24.Profile = sketch24
pad24.setExpression("Length", "Params.pad24_length")
doc.recompute()

boolean24 = body29.newObject("PartDesign::Boolean", "Boolean023")
boolean24.Type = "Cut"
boolean24.addObjects([body28])
doc.recompute()

fillet = body29.newObject("PartDesign::Fillet", "Fillet")
fillet.Base = (boolean24, edges_at(boolean24, [(-11.5, -10, 20), (-11.5, 72, 20)]))
fillet.setExpression("Radius", "Params.fillet_radius")
body30 = doc.addObject("PartDesign::Body", "Body029")

sketch25 = body30.newObject("Sketcher::SketchObject", "Sketch024")
sketch25.AttachmentSupport = (doc.getObject("XY_Plane029"), [""])
sketch25.MapMode = "FlatFace"
sketch25.AttachmentOffset = App.Placement(Vector(0, 0, 9), App.Rotation())
add_polygon(sketch25, [(0, 71), (0, -9), (60, -9), (60, 71)])
sketch25.addConstraint(Sketcher.Constraint("Vertical", 0))
sketch25.addConstraint(Sketcher.Constraint("Horizontal", 1))
sketch25.addConstraint(Sketcher.Constraint("Vertical", 2))
sketch25.addConstraint(Sketcher.Constraint("Horizontal", 3))
sketch25.addConstraint(Sketcher.Constraint("PointOnObject", 0, 2, -2))
sketch25.addConstraint(Sketcher.Constraint("DistanceX", 1, 1, 1, 2, 60.0))
sketch25.addConstraint(Sketcher.Constraint("DistanceY", 0, 2, 0, 1, 80.0))
sketch25.addConstraint(Sketcher.Constraint("DistanceY", 0, 2, -1, 1, 9.0))
sketch25.setExpression("Constraints[9]", "Params.sketch25_width")
sketch25.setExpression("Constraints[10]", "Params.sketch25_height")
pad25 = body30.newObject("PartDesign::Pad", "Pad024")
pad25.Profile = sketch25
pad25.setExpression("Length", "Params.pad25_length")
doc.recompute()

fillet2 = body30.newObject("PartDesign::Fillet", "Fillet001")
fillet2.Base = (pad25, edges_at(pad25, [(30, -9, 19), (30, 71, 19)]))
fillet2.setExpression("Radius", "Params.fillet2_radius")
doc.recompute()

boolean25 = body30.newObject("PartDesign::Boolean", "Boolean024")
boolean25.Type = "Fuse"
boolean25.addObjects([body29])
doc.recompute()

boolean26 = body30.newObject("PartDesign::Boolean", "Boolean025")
boolean26.Type = "Cut"
boolean26.addObjects([body27])
doc.recompute()

boolean27 = body30.newObject("PartDesign::Boolean", "Boolean026")
boolean27.Type = "Cut"
boolean27.addObjects([body25])
body31 = doc.addObject("PartDesign::Body", "Body030")
doc.recompute()

body30.Placement = App.Placement(Vector(69, 0, 0), App.Rotation(Vector(0, 0, 1), 0))
boolean28 = body31.newObject("PartDesign::Boolean", "Boolean027")
boolean28.Type = "Fuse"
boolean28.addObjects([body30])
doc.recompute()

fillet3 = body31.newObject("PartDesign::Fillet", "Fillet002")
fillet3.Base = (boolean28, edges_at(boolean28, [(67.661, 31, 9), (45, 31, 15.928)]))
fillet3.setExpression("Radius", "Params.fillet3_radius")
doc.recompute()

boolean29 = body31.newObject("PartDesign::Boolean", "Boolean028")
boolean29.Type = "Cut"
boolean29.addObjects([body12])
doc.recompute()

boolean30 = body31.newObject("PartDesign::Boolean", "Boolean029")
boolean30.Type = "Cut"
boolean30.addObjects([body11])

doc.recompute()
